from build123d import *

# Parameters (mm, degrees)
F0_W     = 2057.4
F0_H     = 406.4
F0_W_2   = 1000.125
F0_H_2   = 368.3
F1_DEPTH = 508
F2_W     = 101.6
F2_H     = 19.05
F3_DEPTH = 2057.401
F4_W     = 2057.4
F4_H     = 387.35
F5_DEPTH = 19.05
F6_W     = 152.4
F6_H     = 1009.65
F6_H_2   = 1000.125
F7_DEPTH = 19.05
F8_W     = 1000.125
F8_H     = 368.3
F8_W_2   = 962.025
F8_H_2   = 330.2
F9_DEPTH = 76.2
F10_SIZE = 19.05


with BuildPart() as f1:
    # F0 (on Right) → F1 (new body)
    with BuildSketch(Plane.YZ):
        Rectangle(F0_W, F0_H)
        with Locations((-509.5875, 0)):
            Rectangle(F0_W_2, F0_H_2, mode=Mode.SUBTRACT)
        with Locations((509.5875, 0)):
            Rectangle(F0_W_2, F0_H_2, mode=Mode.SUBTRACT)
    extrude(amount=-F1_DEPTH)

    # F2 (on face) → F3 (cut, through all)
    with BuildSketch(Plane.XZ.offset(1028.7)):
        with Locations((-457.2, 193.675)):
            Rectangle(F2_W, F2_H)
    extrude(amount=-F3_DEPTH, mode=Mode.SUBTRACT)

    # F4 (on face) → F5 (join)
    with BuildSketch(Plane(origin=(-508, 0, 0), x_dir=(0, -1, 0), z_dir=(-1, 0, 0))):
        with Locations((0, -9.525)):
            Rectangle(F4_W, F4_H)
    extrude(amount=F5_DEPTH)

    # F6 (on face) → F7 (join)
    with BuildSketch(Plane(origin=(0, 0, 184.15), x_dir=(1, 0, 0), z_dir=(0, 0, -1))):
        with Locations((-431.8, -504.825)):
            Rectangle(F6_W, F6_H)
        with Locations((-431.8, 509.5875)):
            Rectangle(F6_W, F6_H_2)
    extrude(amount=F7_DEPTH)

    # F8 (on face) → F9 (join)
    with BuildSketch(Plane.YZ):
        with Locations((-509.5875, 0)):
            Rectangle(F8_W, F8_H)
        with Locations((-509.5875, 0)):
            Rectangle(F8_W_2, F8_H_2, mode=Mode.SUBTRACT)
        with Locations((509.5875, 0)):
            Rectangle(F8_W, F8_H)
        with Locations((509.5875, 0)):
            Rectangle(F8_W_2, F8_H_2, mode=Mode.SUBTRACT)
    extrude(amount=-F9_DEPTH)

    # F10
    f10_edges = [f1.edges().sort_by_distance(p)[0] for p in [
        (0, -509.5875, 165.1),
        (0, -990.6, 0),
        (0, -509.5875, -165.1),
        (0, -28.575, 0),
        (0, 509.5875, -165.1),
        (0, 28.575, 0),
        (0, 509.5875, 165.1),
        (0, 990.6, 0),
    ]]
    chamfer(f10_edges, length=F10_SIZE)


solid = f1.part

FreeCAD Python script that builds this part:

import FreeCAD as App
import Part
import Sketcher
Q = App.Units.Quantity


def edges_at(feature, points):
    """Names of the edges that pass closest to the given points."""
    edges = feature.Shape.Edges
    near = lambda p: min(range(len(edges)), key=lambda i: edges[i].distToShape(Part.Vertex(*p))[0])
    return sorted({f"Edge{near(p) + 1}" for p in points})


def add_polygon(sketch, points):
    """Adds a closed chain of lines whose ends are joined by coincident constraints."""
    first, n = sketch.GeometryCount, len(points)
    for a, b in zip(points, points[1:] + points[:1]):
        sketch.addGeometry(Part.LineSegment(App.Vector(*a, 0), App.Vector(*b, 0)), False)
    for i in range(n):
        sketch.addConstraint(Sketcher.Constraint("Coincident", first + i, 2, first + (i + 1) % n, 1))

doc = App.newDocument("Part")
body = doc.addObject("PartDesign::Body", "Body")

# Sketch on YZ plane
sketch1 = body.newObject("Sketcher::SketchObject", "Sketch")
sketch1.AttachmentSupport = (doc.getObject("YZ_Plane"), [""])
sketch1.MapMode = "FlatFace"
add_polygon(sketch1, [(-1028.7, 203.2), (-1028.7, -203.2), (1028.7, -203.2), (1028.7, 203.2)])  # lines 0-3
add_polygon(sketch1, [(-9.525, -184.15), (-1009.65, -184.15), (-1009.65, 184.15), (-9.525, 184.15)])  # lines 4-7
add_polygon(sketch1, [(1009.65, -184.15), (9.525, -184.15), (9.525, 184.15), (1009.65, 184.15)])  # lines 8-11
sketch1.addConstraint([
    Sketcher.Constraint("Vertical", 0),
    Sketcher.Constraint("Horizontal", 1),
    Sketcher.Constraint("Vertical", 2),
    Sketcher.Constraint("Horizontal", 3),
    Sketcher.Constraint("Horizontal", 4),
    Sketcher.Constraint("Vertical", 5),
    Sketcher.Constraint("Horizontal", 6),
    Sketcher.Constraint("Vertical", 7),
    Sketcher.Constraint("Horizontal", 8),
    Sketcher.Constraint("Vertical", 9),
    Sketcher.Constraint("Horizontal", 10),
    Sketcher.Constraint("Vertical", 11),
    Sketcher.Constraint("Symmetric", 0, 2, 2, 2, -1, 1),
    Sketcher.Constraint("Symmetric", 6, 2, 8, 2, -1, 1),
    Sketcher.Constraint("Symmetric", 4, 2, 10, 2, -1, 1),
    Sketcher.Constraint("Horizontal", 7, 2, 8, 2),
    Sketcher.Constraint("DistanceX", 1, 1, 1, 2, Q("81 in")),
    Sketcher.Constraint("DistanceY", 0, 2, 0, 1, Q("16 in")),
    Sketcher.Constraint("DistanceY", 5, 1, 5, 2, Q("14.5 in")),
    Sketcher.Constraint("DistanceX", 4, 2, 4, 1, Q("39.375 in")),
    Sketcher.Constraint("DistanceX", 4, 2, -1, 1, Q("39.75 in")),
])
pad1 = body.newObject("PartDesign::Pad", "Pad")
pad1.Profile = sketch1
pad1.Length = Q("20 in")
pad1.Reversed = True

# Sketch on XZ plane
sketch2 = body.newObject("Sketcher::SketchObject", "Sketch001")
sketch2.AttachmentSupport = (doc.getObject("XZ_Plane"), [""])
sketch2.MapMode = "FlatFace"
sketch2.AttachmentOffset = App.Placement(App.Vector(0, 0, 40.5 * 25.4), App.Rotation())
add_polygon(sketch2, [(-508, 203.2), (-508, 184.15), (-406.4, 184.15), (-406.4, 203.2)])  # lines 0-3
sketch2.addConstraint([
    Sketcher.Constraint("Vertical", 0),
    Sketcher.Constraint("Horizontal", 1),
    Sketcher.Constraint("Vertical", 2),
    Sketcher.Constraint("Horizontal", 3),
    Sketcher.Constraint("DistanceX", 1, 1, 1, 2, Q("4 in")),
    Sketcher.Constraint("DistanceX", 0, 2, -1, 1, Q("20 in")),
    Sketcher.Constraint("DistanceY", -1, 1, 2, 2, Q("8 in")),
    Sketcher.Constraint("DistanceY", 0, 2, 0, 1, Q("0.75 in")),
])
pocket1 = body.newObject("PartDesign::Pocket", "Pocket")
pocket1.Profile = sketch2
pocket1.Type = "ThroughAll"

# Sketch on YZ plane
sketch3 = body.newObject("Sketcher::SketchObject", "Sketch002")
sketch3.AttachmentSupport = (doc.getObject("YZ_Plane"), [""])
sketch3.MapMode = "FlatFace"
sketch3.AttachmentOffset = App.Placement(App.Vector(0, 0, -20 * 25.4), App.Rotation())
add_polygon(sketch3, [(1028.7, 184.15), (1028.7, -203.2), (-1028.7, -203.2), (-1028.7, 184.15)])  # lines 0-3
sketch3.addConstraint([
    Sketcher.Constraint("Vertical", 0),
    Sketcher.Constraint("Horizontal", 1),
    Sketcher.Constraint("Vertical", 2),
    Sketcher.Constraint("Horizontal", 3),
    Sketcher.Constraint("DistanceX", 1, 2, 1, 1, Q("81 in")),
    Sketcher.Constraint("DistanceY", 0, 2, -1, 1, Q("8 in")),
    Sketcher.Constraint("DistanceY", 0, 2, 0, 1, Q("15.25 in")),
    Sketcher.Constraint("DistanceX", -1, 1, 0, 2, Q("40.5 in")),
])
pad2 = body.newObject("PartDesign::Pad", "Pad001")
pad2.Profile = sketch3
pad2.Length = Q("0.75 in")
pad2.Reversed = True

# Sketch on XY plane
sketch4 = body.newObject("Sketcher::SketchObject", "Sketch003")
sketch4.AttachmentSupport = (doc.getObject("XY_Plane"), [""])
sketch4.MapMode = "FlatFace"
sketch4.AttachmentOffset = App.Placement(App.Vector(0, 0, 7.25 * 25.4), App.Rotation())
add_polygon(sketch4, [(-508, 0), (-508, 1009.65), (-355.6, 1009.65), (-355.6, 0)])  # lines 0-3
add_polygon(sketch4, [(-508, -1009.65), (-508, -9.525), (-355.6, -9.525), (-355.6, -1009.65)])  # lines 4-7
sketch4.addConstraint([
    Sketcher.Constraint("Vertical", 0),
    Sketcher.Constraint("Horizontal", 1),
    Sketcher.Constraint("Vertical", 2),
    Sketcher.Constraint("Horizontal", 3),
    Sketcher.Constraint("Vertical", 4),
    Sketcher.Constraint("Horizontal", 5),
    Sketcher.Constraint("Vertical", 6),
    Sketcher.Constraint("Horizontal", 7),
    Sketcher.Constraint("Symmetric", 1, 2, 6, 2, -1),
    Sketcher.Constraint("PointOnObject", 2, 2, -1),
    Sketcher.Constraint("Vertical", 3, 2, 4, 2),
    Sketcher.Constraint("DistanceX", 1, 1, 1, 2, Q("6 in")),
    Sketcher.Constraint("DistanceX", 0, 2, -1, 1, Q("20 in")),
    Sketcher.Constraint("DistanceY", 0, 1, 0, 2, Q("39.75 in")),
    Sketcher.Constraint("DistanceY", 4, 1, 4, 2, Q("39.375 in")),
])
pad3 = body.newObject("PartDesign::Pad", "Pad002")
pad3.Profile = sketch4
pad3.Length = Q("0.75 in")
pad3.Reversed = True

# Sketch on YZ plane
sketch5 = body.newObject("Sketcher::SketchObject", "Sketch004")
sketch5.AttachmentSupport = (doc.getObject("YZ_Plane"), [""])
sketch5.MapMode = "FlatFace"
add_polygon(sketch5, [(-1009.65, 184.15), (-1009.65, -184.15), (-9.525, -184.15), (-9.525, 184.15)])  # lines 0-3
add_polygon(sketch5, [(-28.575, -165.1), (-990.6, -165.1), (-990.6, 165.1), (-28.575, 165.1)])  # lines 4-7
add_polygon(sketch5, [(9.525, 184.15), (9.525, -184.15), (1009.65, -184.15), (1009.65, 184.15)])  # lines 8-11
add_polygon(sketch5, [(990.6, -165.1), (28.575, -165.1), (28.575, 165.1), (990.6, 165.1)])  # lines 12-15
sketch5.addConstraint([
    Sketcher.Constraint("Vertical", 0),
    Sketcher.Constraint("Horizontal", 1),
    Sketcher.Constraint("Vertical", 2),
    Sketcher.Constraint("Horizontal", 3),
    Sketcher.Constraint("Horizontal", 4),
    Sketcher.Constraint("Vertical", 5),
    Sketcher.Constraint("Horizontal", 6),
    Sketcher.Constraint("Vertical", 7),
    Sketcher.Constraint("Vertical", 8),
    Sketcher.Constraint("Horizontal", 9),
    Sketcher.Constraint("Vertical", 10),
    Sketcher.Constraint("Horizontal", 11),
    Sketcher.Constraint("Horizontal", 12),
    Sketcher.Constraint("Vertical", 13),
    Sketcher.Constraint("Horizontal", 14),
    Sketcher.Constraint("Vertical", 15),
    Sketcher.Constraint("Symmetric", 2, 2, 8, 2, -1, 1),
    Sketcher.Constraint("Symmetric", 0, 2, 10, 2, -1, 1),
    Sketcher.Constraint("Symmetric", 6, 2, 12, 2, -1, 1),
    Sketcher.Constraint("Symmetric", 4, 2, 14, 2, -1, 1),
    Sketcher.Constraint("Horizontal", 1, 2, 8, 2),
    Sketcher.Constraint("Horizontal", 7, 2, 12, 2),
    Sketcher.Constraint("DistanceY", 5, 1, 5, 2, Q("13 in")),
    Sketcher.Constraint("DistanceY", 0, 2, 0, 1, Q("14.5 in")),
    Sketcher.Constraint("DistanceX", 4, 2, -1, 1, Q("39 in")),
    Sketcher.Constraint("DistanceX", 7, 2, 8, 2, Q("1.5 in")),
    Sketcher.Constraint("DistanceX", 1, 1, 1, 2, Q("39.375 in")),
    Sketcher.Constraint("DistanceX", 4, 2, 4, 1, Q("37.875 in")),
])
pad4 = body.newObject("PartDesign::Pad", "Pad003")
pad4.Profile = sketch5
pad4.Length = Q("3 in")
pad4.Reversed = True
doc.recompute()

chamfer = body.newObject("PartDesign::Chamfer", "Chamfer")
chamfer.Base = (pad4, edges_at(pad4, [
    (0, -509.587, 165.1),
    (0, -990.6, 0),
    (0, -509.587, -165.1),
    (0, -28.575, 0),
    (0, 509.587, -165.1),
    (0, 28.575, 0),
    (0, 509.587, 165.1),
    (0, 990.6, 0),
]))
chamfer.Size = Q("0.75 in")

doc.recompute()
